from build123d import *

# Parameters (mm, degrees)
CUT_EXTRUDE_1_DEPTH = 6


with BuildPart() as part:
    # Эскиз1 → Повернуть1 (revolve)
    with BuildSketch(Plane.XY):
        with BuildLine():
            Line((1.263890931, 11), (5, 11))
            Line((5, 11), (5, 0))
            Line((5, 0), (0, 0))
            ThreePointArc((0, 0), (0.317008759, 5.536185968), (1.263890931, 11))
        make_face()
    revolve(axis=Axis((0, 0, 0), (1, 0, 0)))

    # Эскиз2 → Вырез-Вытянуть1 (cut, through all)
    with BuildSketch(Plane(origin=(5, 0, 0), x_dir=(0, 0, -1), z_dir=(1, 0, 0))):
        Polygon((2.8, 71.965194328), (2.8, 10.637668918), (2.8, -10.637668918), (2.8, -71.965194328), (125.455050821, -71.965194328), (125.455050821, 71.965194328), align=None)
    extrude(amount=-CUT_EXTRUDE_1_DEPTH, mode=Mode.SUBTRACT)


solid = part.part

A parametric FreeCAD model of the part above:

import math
import FreeCAD as App
import Part
import Sketcher

V = App.Vector


def add_polygon(sketch, points):
    """Adds a closed chain of lines whose ends are joined by coincident constraints."""
    first, n = sketch.GeometryCount, len(points)
    for a, b in zip(points, points[1:] + points[:1]):
        sketch.addGeometry(Part.LineSegment(App.Vector(*a, 0), App.Vector(*b, 0)), False)
    for i in range(n):
        sketch.addConstraint(Sketcher.Constraint("Coincident", first + i, 2, first + (i + 1) % n, 1))

doc = App.newDocument("Part")
body = doc.addObject("PartDesign::Body", "Body")

# Sketch on XY plane
sketch1 = body.newObject("Sketcher::SketchObject", "Sketch")
sketch1.AttachmentSupport = (doc.getObject("XY_Plane"), [""])
sketch1.MapMode = "FlatFace"
sketch1.addGeometry(Part.LineSegment(V(5, 11, 0), V(1.3, 11, 0)), False)
sketch1.addGeometry(Part.ArcOfCircle(Part.Circle(V(48.5, 0, 0), V(0, 0, 1), 48.5), math.radians(166.89), math.radians(180)), False)
sketch1.addGeometry(Part.LineSegment(V(0, 0, 0), V(5, 0, 0)), False)
sketch1.addGeometry(Part.LineSegment(V(5, 0, 0), V(5, 11, 0)), False)
sketch1.addConstraint(Sketcher.Constraint("Coincident", 0, 2, 1, 1))
sketch1.addConstraint(Sketcher.Constraint("Coincident", 1, 2, 2, 1))
sketch1.addConstraint(Sketcher.Constraint("Coincident", 2, 2, 3, 1))
sketch1.addConstraint(Sketcher.Constraint("Coincident", 3, 2, 0, 1))
sketch1.addConstraint(Sketcher.Constraint("Horizontal", 0))
sketch1.addConstraint(Sketcher.Constraint("Horizontal", 2))
sketch1.addConstraint(Sketcher.Constraint("Vertical", 3))
sketch1.addConstraint(Sketcher.Constraint("Coincident", 1, 2, -1, 1))
sketch1.addConstraint(Sketcher.Constraint("PointOnObject", 1, 3, -1))
sketch1.addConstraint(Sketcher.Constraint("Radius", 1, 48.5))
sketch1.addConstraint(Sketcher.Constraint("DistanceX", 2, 1, 2, 2, 5.0))
sketch1.addConstraint(Sketcher.Constraint("DistanceY", 3, 1, 3, 2, 11.0))
revolution = body.newObject("PartDesign::Revolution", "Revolution")
revolution.Profile = sketch1
revolution.ReferenceAxis = (sketch1, ["H_Axis"])
revolution.Angle = 360

# Sketch on YZ plane
sketch2 = body.newObject("Sketcher::SketchObject", "Sketch001")
sketch2.AttachmentSupport = (doc.getObject("YZ_Plane"), [""])
sketch2.MapMode = "FlatFace"
sketch2.AttachmentOffset = App.Placement(V(0, 0, 5), App.Rotation())
add_polygon(sketch2, [(72, -3), (-72, -3), (-72, -125), (72, -125)])  # lines 0-3
sketch2.addConstraint(Sketcher.Constraint("Horizontal", 0))
sketch2.addConstraint(Sketcher.Constraint("Vertical", 1))
sketch2.addConstraint(Sketcher.Constraint("Horizontal", 2))
sketch2.addConstraint(Sketcher.Constraint("Vertical", 3))
sketch2.addConstraint(Sketcher.Constraint("DistanceY", 0, 2, -1, 1, 2.8))
sketch2.addConstraint(Sketcher.Constraint("DistanceX", 0, 2, 0, 1, 143.930389))
sketch2.addConstraint(Sketcher.Constraint("DistanceY", 1, 2, 1, 1, 122.655051))
sketch2.addConstraint(Sketcher.Constraint("DistanceX", 0, 2, -1, 1, 71.965194))
pocket1 = body.newObject("PartDesign::Pocket", "Pocket")
pocket1.Profile = sketch2
pocket1.Type = "ThroughAll"

doc.recompute()
